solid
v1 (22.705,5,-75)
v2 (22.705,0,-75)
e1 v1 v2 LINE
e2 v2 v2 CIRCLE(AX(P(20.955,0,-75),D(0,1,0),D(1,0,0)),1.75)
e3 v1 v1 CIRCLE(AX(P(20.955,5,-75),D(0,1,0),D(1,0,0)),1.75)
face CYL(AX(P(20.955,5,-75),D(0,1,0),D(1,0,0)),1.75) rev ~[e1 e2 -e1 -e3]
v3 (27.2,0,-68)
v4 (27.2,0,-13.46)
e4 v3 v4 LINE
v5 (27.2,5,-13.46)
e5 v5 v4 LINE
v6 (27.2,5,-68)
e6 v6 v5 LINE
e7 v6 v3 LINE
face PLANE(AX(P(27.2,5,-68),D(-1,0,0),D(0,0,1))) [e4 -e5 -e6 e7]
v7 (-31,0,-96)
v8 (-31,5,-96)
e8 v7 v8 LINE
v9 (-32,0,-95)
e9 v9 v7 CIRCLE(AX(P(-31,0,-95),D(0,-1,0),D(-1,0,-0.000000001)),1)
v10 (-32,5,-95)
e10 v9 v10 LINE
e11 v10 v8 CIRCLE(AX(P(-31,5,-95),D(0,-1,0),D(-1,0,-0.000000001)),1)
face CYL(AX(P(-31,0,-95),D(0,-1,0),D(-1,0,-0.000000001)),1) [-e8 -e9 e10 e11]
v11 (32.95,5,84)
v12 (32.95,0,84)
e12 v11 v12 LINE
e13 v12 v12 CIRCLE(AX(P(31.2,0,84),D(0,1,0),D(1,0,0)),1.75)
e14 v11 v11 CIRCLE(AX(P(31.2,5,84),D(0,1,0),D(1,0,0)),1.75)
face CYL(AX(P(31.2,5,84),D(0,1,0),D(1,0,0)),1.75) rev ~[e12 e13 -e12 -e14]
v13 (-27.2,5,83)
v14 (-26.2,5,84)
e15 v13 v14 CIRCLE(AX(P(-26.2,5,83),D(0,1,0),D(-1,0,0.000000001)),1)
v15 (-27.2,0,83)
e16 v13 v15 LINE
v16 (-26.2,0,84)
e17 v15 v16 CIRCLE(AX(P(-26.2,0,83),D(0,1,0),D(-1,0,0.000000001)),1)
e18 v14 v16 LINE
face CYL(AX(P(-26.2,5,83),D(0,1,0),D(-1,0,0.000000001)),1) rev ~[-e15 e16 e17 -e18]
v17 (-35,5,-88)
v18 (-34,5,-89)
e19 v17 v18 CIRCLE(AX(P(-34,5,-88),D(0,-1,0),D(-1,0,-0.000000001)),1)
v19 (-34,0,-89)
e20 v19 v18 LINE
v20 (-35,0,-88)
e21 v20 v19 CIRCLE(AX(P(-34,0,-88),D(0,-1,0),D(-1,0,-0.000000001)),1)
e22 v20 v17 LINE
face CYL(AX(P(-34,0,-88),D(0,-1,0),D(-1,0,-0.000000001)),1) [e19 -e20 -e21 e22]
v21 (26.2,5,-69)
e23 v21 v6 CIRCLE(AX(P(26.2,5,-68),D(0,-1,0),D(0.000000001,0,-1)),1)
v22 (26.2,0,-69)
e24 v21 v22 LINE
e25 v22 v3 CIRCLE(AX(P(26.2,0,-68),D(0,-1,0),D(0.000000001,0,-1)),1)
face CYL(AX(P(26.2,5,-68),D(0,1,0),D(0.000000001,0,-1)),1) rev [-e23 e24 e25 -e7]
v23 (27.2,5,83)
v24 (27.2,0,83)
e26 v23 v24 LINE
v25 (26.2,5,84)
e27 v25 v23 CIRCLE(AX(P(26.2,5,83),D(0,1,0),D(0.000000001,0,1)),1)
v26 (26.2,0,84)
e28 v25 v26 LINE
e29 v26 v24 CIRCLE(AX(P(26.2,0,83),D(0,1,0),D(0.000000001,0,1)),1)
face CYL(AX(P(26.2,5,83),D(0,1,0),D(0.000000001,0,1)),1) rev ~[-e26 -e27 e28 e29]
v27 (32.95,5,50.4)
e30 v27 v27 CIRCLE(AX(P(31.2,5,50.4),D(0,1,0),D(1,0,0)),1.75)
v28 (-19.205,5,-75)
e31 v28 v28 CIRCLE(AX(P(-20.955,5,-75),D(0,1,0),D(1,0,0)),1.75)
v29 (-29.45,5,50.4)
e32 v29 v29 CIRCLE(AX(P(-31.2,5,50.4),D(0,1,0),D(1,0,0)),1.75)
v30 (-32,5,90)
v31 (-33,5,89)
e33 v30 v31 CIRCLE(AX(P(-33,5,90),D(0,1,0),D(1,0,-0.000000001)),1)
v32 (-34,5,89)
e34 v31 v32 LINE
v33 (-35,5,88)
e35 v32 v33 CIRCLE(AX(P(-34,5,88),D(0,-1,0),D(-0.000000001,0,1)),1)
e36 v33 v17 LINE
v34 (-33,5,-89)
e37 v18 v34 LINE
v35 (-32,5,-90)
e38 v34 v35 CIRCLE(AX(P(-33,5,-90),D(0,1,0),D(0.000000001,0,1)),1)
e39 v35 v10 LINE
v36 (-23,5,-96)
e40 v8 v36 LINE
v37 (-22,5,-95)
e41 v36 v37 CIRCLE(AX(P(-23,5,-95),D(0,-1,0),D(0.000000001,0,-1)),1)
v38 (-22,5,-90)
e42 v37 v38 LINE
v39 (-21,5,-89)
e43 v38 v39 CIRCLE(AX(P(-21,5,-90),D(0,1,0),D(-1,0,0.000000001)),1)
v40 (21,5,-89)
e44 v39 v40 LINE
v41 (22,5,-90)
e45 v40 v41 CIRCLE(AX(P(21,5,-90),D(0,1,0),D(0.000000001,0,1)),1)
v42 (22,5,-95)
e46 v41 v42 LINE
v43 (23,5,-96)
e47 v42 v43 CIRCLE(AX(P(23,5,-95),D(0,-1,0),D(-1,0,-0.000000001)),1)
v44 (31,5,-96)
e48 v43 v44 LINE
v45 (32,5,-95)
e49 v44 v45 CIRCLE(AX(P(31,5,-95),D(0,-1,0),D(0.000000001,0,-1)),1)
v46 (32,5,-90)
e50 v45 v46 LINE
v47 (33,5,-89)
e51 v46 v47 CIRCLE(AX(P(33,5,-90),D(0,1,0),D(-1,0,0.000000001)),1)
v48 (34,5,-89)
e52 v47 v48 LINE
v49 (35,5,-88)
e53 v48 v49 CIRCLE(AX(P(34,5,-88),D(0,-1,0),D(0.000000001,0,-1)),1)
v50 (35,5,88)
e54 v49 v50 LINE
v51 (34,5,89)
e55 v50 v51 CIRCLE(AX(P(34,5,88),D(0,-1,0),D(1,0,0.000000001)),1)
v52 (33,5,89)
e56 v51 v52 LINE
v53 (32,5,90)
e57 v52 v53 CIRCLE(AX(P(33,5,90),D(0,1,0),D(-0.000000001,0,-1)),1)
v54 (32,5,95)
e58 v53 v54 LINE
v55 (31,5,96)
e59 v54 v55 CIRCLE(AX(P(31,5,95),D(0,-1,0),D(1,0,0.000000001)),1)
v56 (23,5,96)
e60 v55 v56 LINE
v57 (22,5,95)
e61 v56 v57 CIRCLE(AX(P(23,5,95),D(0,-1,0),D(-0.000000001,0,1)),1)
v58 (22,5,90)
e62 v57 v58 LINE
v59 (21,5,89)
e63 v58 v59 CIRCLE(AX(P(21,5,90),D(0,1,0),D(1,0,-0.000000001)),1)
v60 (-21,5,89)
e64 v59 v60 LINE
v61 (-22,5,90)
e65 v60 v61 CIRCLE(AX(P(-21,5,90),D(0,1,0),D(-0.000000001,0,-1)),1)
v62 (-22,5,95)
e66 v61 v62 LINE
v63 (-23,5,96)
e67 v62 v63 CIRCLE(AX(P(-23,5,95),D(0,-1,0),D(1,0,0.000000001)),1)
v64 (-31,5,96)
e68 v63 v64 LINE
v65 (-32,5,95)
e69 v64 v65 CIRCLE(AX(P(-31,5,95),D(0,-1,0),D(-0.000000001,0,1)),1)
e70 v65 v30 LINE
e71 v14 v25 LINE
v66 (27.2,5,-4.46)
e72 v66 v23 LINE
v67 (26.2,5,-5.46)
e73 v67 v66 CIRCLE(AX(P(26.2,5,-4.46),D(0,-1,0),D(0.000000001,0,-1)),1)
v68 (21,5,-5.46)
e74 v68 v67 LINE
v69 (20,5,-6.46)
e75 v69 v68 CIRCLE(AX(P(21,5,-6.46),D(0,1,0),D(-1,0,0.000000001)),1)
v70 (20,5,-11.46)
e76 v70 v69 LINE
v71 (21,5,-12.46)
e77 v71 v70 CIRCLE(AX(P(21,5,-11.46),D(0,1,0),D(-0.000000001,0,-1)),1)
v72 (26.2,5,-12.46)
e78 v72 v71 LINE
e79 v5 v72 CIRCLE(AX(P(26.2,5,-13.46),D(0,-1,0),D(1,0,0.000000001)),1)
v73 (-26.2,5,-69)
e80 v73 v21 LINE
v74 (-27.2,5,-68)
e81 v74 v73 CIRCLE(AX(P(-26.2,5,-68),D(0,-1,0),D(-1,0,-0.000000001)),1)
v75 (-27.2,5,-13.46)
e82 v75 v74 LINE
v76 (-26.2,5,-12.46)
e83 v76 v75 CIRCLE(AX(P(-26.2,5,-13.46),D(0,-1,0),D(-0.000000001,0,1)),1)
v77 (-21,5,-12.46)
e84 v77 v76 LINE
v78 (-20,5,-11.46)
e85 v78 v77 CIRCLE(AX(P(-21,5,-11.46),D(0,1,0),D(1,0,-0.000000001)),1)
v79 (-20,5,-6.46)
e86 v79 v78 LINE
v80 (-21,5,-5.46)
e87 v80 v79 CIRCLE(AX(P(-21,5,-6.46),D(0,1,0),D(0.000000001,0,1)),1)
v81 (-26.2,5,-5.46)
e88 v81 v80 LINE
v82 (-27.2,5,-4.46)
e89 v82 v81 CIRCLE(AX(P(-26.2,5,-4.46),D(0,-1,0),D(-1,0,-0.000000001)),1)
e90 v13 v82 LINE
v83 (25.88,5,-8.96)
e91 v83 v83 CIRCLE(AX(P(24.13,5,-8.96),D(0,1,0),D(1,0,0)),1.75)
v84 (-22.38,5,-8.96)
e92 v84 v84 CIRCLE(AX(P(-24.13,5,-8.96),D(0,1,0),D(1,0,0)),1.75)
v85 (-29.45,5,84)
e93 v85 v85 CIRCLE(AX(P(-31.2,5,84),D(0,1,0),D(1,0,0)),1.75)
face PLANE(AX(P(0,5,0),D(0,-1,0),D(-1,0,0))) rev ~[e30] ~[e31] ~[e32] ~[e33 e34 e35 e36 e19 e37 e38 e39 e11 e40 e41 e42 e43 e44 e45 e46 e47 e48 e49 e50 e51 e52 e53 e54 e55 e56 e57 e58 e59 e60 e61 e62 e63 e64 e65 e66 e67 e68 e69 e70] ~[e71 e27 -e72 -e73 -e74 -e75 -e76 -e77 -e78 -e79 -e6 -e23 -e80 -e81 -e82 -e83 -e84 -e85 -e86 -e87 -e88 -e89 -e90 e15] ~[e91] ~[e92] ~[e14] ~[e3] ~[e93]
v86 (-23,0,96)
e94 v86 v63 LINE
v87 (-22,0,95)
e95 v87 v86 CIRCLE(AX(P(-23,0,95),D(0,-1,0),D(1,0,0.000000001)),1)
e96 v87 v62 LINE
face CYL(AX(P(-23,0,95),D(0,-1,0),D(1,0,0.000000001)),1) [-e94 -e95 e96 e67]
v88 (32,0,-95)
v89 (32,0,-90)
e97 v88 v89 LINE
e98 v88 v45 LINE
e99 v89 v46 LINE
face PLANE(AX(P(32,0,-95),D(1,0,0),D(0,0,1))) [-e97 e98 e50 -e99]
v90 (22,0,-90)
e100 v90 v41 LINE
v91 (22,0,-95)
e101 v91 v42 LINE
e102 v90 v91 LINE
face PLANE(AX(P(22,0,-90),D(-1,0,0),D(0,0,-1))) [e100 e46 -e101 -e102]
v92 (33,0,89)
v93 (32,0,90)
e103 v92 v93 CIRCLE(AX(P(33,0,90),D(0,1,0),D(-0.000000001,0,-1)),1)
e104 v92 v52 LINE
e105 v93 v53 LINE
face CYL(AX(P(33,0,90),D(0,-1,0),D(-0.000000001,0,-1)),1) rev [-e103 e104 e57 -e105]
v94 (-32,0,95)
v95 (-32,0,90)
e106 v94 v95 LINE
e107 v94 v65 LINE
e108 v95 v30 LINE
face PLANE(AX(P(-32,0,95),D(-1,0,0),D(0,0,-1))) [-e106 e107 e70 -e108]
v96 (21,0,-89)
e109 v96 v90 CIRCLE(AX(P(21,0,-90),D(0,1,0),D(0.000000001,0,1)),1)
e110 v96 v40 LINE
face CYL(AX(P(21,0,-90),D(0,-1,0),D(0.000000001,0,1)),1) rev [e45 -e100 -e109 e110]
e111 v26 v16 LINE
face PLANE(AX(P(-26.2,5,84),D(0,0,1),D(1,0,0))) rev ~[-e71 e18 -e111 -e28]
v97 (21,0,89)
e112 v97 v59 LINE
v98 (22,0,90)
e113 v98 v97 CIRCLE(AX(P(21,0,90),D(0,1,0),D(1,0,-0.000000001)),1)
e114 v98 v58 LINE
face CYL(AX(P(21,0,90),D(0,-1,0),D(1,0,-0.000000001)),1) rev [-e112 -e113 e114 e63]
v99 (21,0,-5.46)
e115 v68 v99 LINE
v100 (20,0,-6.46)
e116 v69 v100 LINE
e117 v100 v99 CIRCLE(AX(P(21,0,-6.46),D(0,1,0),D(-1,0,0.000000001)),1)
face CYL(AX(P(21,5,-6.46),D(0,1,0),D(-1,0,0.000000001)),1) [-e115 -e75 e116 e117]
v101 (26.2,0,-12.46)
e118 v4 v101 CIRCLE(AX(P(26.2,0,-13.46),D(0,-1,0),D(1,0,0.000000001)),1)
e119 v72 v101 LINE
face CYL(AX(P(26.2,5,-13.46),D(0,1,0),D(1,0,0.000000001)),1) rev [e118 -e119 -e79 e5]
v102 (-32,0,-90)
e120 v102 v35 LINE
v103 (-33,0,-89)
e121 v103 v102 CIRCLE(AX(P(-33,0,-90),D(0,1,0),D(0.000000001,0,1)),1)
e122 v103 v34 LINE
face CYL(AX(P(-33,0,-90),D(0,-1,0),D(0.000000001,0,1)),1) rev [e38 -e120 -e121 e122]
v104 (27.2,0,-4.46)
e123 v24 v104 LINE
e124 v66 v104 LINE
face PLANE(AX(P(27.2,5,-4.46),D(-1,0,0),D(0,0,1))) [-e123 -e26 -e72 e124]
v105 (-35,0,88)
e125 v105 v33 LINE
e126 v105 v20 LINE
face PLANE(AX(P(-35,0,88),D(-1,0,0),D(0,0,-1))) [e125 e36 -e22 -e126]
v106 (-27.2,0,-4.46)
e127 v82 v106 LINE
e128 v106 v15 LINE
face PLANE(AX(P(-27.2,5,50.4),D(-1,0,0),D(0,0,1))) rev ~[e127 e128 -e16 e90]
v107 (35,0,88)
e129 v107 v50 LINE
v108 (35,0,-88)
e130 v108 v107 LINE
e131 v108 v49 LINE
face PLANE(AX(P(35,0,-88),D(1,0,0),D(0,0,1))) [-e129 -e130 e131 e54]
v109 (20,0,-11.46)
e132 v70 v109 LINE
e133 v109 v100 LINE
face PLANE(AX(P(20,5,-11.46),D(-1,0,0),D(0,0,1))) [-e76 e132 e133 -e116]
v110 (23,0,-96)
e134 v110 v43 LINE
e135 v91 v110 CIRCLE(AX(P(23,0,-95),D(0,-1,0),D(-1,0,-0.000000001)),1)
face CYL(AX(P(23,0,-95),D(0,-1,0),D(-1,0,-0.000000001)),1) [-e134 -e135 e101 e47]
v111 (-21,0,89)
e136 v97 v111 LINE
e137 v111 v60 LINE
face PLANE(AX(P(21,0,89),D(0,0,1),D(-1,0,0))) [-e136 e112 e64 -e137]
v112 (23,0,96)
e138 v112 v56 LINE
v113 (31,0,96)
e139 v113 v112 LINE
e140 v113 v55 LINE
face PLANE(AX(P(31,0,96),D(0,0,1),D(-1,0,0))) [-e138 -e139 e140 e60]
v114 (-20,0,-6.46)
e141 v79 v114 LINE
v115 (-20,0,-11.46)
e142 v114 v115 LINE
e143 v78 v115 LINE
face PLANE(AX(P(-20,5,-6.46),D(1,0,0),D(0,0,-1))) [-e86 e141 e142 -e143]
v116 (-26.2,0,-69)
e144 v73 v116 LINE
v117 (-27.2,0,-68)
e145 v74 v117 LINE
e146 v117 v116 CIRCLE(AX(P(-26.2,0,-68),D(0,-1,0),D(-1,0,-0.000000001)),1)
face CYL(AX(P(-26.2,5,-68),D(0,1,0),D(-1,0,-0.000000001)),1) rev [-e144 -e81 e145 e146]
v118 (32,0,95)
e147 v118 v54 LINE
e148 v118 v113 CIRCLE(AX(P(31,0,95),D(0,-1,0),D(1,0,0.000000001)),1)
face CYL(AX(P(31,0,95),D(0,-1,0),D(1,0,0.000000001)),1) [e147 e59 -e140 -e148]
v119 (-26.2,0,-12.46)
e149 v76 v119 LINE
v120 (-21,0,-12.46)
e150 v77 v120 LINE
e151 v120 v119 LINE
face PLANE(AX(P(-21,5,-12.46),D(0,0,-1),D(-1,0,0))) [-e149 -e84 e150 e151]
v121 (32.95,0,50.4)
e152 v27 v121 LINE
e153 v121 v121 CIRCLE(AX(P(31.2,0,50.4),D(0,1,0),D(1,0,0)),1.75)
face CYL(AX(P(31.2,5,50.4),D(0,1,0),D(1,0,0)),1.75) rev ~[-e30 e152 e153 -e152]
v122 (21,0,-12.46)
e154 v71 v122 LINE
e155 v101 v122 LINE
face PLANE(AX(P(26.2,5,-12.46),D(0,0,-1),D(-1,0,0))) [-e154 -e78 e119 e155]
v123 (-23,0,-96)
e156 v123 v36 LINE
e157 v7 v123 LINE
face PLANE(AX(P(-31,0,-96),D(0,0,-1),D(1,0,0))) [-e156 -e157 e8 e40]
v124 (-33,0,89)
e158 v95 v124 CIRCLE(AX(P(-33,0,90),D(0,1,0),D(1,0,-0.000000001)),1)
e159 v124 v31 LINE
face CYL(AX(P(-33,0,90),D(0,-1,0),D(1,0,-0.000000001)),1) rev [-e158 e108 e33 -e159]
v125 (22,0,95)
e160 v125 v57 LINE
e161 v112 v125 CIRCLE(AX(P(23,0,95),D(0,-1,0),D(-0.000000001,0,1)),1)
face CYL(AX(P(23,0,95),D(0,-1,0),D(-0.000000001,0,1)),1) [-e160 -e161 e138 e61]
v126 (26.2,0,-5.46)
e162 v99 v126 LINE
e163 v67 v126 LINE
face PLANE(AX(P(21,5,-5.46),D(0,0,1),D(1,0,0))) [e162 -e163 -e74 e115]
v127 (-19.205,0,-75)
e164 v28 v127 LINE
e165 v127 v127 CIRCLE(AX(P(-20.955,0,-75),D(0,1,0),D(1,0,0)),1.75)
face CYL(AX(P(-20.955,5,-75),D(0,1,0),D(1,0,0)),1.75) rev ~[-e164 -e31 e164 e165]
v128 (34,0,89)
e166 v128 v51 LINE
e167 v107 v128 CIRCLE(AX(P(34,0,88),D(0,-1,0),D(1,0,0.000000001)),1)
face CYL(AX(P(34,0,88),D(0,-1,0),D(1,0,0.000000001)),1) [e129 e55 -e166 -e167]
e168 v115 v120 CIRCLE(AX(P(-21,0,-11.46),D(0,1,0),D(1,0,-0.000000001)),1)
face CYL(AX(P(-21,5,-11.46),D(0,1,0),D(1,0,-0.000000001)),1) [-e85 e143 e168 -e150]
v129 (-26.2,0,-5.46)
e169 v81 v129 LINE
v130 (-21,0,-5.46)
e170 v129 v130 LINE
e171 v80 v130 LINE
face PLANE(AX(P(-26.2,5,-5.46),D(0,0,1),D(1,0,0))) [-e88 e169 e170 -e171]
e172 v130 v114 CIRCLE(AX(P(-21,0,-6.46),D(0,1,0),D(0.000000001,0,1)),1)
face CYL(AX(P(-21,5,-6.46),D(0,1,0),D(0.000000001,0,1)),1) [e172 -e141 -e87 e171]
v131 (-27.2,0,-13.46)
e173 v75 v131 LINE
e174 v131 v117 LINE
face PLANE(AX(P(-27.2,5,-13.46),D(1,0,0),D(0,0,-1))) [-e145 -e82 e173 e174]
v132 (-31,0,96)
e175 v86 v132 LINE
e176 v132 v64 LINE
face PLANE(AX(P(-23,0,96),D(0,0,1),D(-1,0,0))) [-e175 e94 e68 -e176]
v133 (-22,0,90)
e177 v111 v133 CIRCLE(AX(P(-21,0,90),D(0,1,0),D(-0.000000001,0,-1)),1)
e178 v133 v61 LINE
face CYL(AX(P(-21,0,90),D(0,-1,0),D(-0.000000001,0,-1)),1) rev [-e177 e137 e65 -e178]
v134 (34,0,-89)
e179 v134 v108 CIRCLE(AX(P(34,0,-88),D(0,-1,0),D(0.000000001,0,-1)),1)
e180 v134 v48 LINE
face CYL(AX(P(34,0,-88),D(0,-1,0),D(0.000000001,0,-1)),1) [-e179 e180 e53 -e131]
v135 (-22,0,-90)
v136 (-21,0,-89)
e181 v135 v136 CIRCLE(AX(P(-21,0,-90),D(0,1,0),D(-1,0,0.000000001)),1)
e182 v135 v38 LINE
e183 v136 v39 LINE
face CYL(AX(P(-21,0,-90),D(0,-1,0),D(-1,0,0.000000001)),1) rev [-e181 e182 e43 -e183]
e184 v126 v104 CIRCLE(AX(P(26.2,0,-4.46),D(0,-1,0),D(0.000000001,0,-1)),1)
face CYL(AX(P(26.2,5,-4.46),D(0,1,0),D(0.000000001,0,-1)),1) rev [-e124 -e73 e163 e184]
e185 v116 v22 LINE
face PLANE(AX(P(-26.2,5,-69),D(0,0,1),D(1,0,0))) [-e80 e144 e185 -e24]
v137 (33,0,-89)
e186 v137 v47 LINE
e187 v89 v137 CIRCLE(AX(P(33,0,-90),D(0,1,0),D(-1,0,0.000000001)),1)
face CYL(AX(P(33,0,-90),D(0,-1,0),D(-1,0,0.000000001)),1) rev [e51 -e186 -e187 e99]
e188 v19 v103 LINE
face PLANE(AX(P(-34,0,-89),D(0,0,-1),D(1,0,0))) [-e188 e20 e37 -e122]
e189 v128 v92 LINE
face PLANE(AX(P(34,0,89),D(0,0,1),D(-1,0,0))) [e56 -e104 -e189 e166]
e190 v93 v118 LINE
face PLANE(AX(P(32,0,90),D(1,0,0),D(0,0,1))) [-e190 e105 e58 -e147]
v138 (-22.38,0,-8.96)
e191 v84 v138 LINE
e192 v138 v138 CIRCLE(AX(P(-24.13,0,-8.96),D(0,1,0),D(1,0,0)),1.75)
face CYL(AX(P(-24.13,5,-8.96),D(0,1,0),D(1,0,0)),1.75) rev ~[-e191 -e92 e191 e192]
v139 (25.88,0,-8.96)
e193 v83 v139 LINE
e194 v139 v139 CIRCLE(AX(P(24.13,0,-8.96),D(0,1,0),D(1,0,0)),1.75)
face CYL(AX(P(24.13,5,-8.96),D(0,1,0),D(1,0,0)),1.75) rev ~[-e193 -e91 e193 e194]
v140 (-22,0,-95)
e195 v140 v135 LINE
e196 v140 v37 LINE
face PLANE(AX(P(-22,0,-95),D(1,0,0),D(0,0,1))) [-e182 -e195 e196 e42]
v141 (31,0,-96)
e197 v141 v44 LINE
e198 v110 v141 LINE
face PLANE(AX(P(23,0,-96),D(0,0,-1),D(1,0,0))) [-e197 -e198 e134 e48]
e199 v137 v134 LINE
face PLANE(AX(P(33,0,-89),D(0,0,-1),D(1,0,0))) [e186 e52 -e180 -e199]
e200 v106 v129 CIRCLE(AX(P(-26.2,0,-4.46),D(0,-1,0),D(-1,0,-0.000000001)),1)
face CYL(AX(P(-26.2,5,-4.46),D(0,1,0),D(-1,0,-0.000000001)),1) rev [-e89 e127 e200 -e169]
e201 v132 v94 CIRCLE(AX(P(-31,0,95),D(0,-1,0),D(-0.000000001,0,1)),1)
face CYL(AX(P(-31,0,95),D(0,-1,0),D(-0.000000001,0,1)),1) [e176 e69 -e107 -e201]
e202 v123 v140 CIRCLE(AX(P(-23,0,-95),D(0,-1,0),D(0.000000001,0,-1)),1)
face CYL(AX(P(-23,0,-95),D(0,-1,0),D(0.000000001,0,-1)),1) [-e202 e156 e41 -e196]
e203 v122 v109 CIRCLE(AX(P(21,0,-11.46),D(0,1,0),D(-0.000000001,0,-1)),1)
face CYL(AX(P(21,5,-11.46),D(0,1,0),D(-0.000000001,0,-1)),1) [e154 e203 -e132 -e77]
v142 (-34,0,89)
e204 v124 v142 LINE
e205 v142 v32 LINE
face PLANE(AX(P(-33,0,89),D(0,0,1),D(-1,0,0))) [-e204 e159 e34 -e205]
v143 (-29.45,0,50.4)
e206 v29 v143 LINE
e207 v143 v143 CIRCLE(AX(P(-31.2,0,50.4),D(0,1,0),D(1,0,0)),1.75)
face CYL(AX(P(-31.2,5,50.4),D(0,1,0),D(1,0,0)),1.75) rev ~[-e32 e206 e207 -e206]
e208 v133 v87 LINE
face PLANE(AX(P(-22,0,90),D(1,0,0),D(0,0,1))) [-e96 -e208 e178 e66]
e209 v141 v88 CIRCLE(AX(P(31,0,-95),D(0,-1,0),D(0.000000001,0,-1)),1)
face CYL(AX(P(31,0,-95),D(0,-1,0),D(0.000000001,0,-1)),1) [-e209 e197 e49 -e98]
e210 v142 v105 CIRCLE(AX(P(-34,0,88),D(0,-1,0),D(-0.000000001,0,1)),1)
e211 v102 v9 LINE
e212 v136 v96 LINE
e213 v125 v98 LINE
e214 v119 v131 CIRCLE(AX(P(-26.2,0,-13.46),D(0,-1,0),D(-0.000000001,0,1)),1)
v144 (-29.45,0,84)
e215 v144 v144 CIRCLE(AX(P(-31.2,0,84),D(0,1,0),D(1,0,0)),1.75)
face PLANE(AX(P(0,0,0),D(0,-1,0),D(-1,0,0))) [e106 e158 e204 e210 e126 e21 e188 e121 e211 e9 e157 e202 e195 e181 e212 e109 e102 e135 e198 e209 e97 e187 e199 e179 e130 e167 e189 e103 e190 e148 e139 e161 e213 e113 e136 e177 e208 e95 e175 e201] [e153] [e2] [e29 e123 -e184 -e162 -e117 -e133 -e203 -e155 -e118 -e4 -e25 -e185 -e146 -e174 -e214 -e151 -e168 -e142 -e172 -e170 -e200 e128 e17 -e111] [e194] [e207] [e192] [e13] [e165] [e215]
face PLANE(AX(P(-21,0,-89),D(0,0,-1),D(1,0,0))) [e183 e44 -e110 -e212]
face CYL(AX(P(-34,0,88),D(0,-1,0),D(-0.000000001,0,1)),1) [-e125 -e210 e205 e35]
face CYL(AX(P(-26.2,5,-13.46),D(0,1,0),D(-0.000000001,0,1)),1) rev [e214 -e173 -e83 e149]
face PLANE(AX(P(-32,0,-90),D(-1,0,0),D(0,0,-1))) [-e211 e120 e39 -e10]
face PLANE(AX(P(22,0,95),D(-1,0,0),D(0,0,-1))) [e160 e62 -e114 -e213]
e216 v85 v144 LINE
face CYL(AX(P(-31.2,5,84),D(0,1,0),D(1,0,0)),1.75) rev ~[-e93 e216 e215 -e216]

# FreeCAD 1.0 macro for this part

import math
import FreeCAD as App
import Part
import Sketcher

V = App.Vector
Q = App.Units.Quantity

doc = App.newDocument("Part")
body = doc.addObject("PartDesign::Body", "Body")

# Sketch on XZ plane
sketch1 = body.newObject("Sketcher::SketchObject", "Sketch")
sketch1.AttachmentSupport = (doc.getObject("XZ_Plane"), [""])
sketch1.MapMode = "FlatFace"
sketch1.addGeometry(Part.LineSegment(V(33, 89, 0), V(34, 89, 0)), False)
sketch1.addGeometry(Part.ArcOfCircle(Part.Circle(V(34, 88, 0), V(0, 0, 1), 1), math.radians(0), math.radians(90)), False)
sketch1.addGeometry(Part.LineSegment(V(35, 88, 0), V(35, -88, 0)), False)
sketch1.addGeometry(Part.ArcOfCircle(Part.Circle(V(34, -88, 0), V(0, 0, 1), 1), math.radians(-90), math.radians(0)), False)
sketch1.addGeometry(Part.LineSegment(V(34, -89, 0), V(33, -89, 0)), False)
sketch1.addGeometry(Part.ArcOfCircle(Part.Circle(V(33, -90, 0), V(0, 0, 1), 1), math.radians(90), math.radians(180)), False)
sketch1.addGeometry(Part.LineSegment(V(32, -90, 0), V(32, -95, 0)), False)
sketch1.addGeometry(Part.ArcOfCircle(Part.Circle(V(31, -95, 0), V(0, 0, 1), 1), math.radians(-90), math.radians(0)), False)
sketch1.addGeometry(Part.LineSegment(V(31, -96, 0), V(23, -96, 0)), False)
sketch1.addGeometry(Part.ArcOfCircle(Part.Circle(V(23, -95, 0), V(0, 0, 1), 1), math.radians(-180), math.radians(-90)), False)
sketch1.addGeometry(Part.LineSegment(V(22, -95, 0), V(22, -90, 0)), False)
sketch1.addGeometry(Part.ArcOfCircle(Part.Circle(V(21, -90, 0), V(0, 0, 1), 1), math.radians(0), math.radians(90)), False)
sketch1.addGeometry(Part.LineSegment(V(21, -89, 0), V(-21, -89, 0)), False)
sketch1.addGeometry(Part.ArcOfCircle(Part.Circle(V(-21, -90, 0), V(0, 0, 1), 1), math.radians(90), math.radians(180)), False)
sketch1.addGeometry(Part.LineSegment(V(-22, -90, 0), V(-22, -95, 0)), False)
sketch1.addGeometry(Part.ArcOfCircle(Part.Circle(V(-23, -95, 0), V(0, 0, 1), 1), math.radians(-90), math.radians(0)), False)
sketch1.addGeometry(Part.LineSegment(V(-23, -96, 0), V(-31, -96, 0)), False)
sketch1.addGeometry(Part.ArcOfCircle(Part.Circle(V(-31, -95, 0), V(0, 0, 1), 1), math.radians(-180), math.radians(-90)), False)
sketch1.addGeometry(Part.LineSegment(V(-32, -95, 0), V(-32, -90, 0)), False)
sketch1.addGeometry(Part.ArcOfCircle(Part.Circle(V(-33, -90, 0), V(0, 0, 1), 1), math.radians(0), math.radians(90)), False)
sketch1.addGeometry(Part.LineSegment(V(-33, -89, 0), V(-34, -89, 0)), False)
sketch1.addGeometry(Part.ArcOfCircle(Part.Circle(V(-34, -88, 0), V(0, 0, 1), 1), math.radians(-180), math.radians(-90)), False)
sketch1.addGeometry(Part.LineSegment(V(-35, -88, 0), V(-35, 88, 0)), False)
sketch1.addGeometry(Part.ArcOfCircle(Part.Circle(V(-34, 88, 0), V(0, 0, 1), 1), math.radians(90), math.radians(180)), False)
sketch1.addGeometry(Part.LineSegment(V(-34, 89, 0), V(-33, 89, 0)), False)
sketch1.addGeometry(Part.ArcOfCircle(Part.Circle(V(-33, 90, 0), V(0, 0, 1), 1), math.radians(-90), math.radians(0)), False)
sketch1.addGeometry(Part.LineSegment(V(-32, 90, 0), V(-32, 95, 0)), False)
sketch1.addGeometry(Part.ArcOfCircle(Part.Circle(V(-31, 95, 0), V(0, 0, 1), 1), math.radians(90), math.radians(180)), False)
sketch1.addGeometry(Part.LineSegment(V(-31, 96, 0), V(-23, 96, 0)), False)
sketch1.addGeometry(Part.ArcOfCircle(Part.Circle(V(-23, 95, 0), V(0, 0, 1), 1), math.radians(0), math.radians(90)), False)
sketch1.addGeometry(Part.LineSegment(V(-22, 95, 0), V(-22, 90, 0)), False)
sketch1.addGeometry(Part.ArcOfCircle(Part.Circle(V(-21, 90, 0), V(0, 0, 1), 1), math.radians(-180), math.radians(-90)), False)
sketch1.addGeometry(Part.LineSegment(V(-21, 89, 0), V(21, 89, 0)), False)
sketch1.addGeometry(Part.ArcOfCircle(Part.Circle(V(21, 90, 0), V(0, 0, 1), 1), math.radians(-90), math.radians(0)), False)
sketch1.addGeometry(Part.LineSegment(V(22, 90, 0), V(22, 95, 0)), False)
sketch1.addGeometry(Part.ArcOfCircle(Part.Circle(V(23, 95, 0), V(0, 0, 1), 1), math.radians(90), math.radians(180)), False)
sketch1.addGeometry(Part.LineSegment(V(23, 96, 0), V(31, 96, 0)), False)
sketch1.addGeometry(Part.ArcOfCircle(Part.Circle(V(31, 95, 0), V(0, 0, 1), 1), math.radians(0), math.radians(90)), False)
sketch1.addGeometry(Part.LineSegment(V(32, 95, 0), V(32, 90, 0)), False)
sketch1.addGeometry(Part.ArcOfCircle(Part.Circle(V(33, 90, 0), V(0, 0, 1), 1), math.radians(-180), math.radians(-90)), False)
sketch1.addConstraint(Sketcher.Constraint("Tangent", 0, 2, 1, 2))
sketch1.addConstraint(Sketcher.Constraint("Tangent", 1, 1, 2, 1))
sketch1.addConstraint(Sketcher.Constraint("Tangent", 2, 2, 3, 2))
sketch1.addConstraint(Sketcher.Constraint("Tangent", 3, 1, 4, 1))
sketch1.addConstraint(Sketcher.Constraint("Tangent", 4, 2, 5, 1))
sketch1.addConstraint(Sketcher.Constraint("Tangent", 5, 2, 6, 1))
sketch1.addConstraint(Sketcher.Constraint("Tangent", 6, 2, 7, 2))
sketch1.addConstraint(Sketcher.Constraint("Tangent", 7, 1, 8, 1))
sketch1.addConstraint(Sketcher.Constraint("Tangent", 8, 2, 9, 2))
sketch1.addConstraint(Sketcher.Constraint("Tangent", 9, 1, 10, 1))
sketch1.addConstraint(Sketcher.Constraint("Tangent", 10, 2, 11, 1))
sketch1.addConstraint(Sketcher.Constraint("Tangent", 11, 2, 12, 1))
sketch1.addConstraint(Sketcher.Constraint("Tangent", 12, 2, 13, 1))
sketch1.addConstraint(Sketcher.Constraint("Tangent", 13, 2, 14, 1))
sketch1.addConstraint(Sketcher.Constraint("Tangent", 14, 2, 15, 2))
sketch1.addConstraint(Sketcher.Constraint("Tangent", 15, 1, 16, 1))
sketch1.addConstraint(Sketcher.Constraint("Tangent", 16, 2, 17, 2))
sketch1.addConstraint(Sketcher.Constraint("Tangent", 17, 1, 18, 1))
sketch1.addConstraint(Sketcher.Constraint("Tangent", 18, 2, 19, 1))
sketch1.addConstraint(Sketcher.Constraint("Tangent", 19, 2, 20, 1))
sketch1.addConstraint(Sketcher.Constraint("Tangent", 20, 2, 21, 2))
sketch1.addConstraint(Sketcher.Constraint("Tangent", 21, 1, 22, 1))
sketch1.addConstraint(Sketcher.Constraint("Tangent", 22, 2, 23, 2))
sketch1.addConstraint(Sketcher.Constraint("Tangent", 23, 1, 24, 1))
sketch1.addConstraint(Sketcher.Constraint("Tangent", 24, 2, 25, 1))
sketch1.addConstraint(Sketcher.Constraint("Tangent", 25, 2, 26, 1))
sketch1.addConstraint(Sketcher.Constraint("Tangent", 26, 2, 27, 2))
sketch1.addConstraint(Sketcher.Constraint("Tangent", 27, 1, 28, 1))
sketch1.addConstraint(Sketcher.Constraint("Tangent", 28, 2, 29, 2))
sketch1.addConstraint(Sketcher.Constraint("Tangent", 29, 1, 30, 1))
sketch1.addConstraint(Sketcher.Constraint("Tangent", 30, 2, 31, 1))
sketch1.addConstraint(Sketcher.Constraint("Tangent", 31, 2, 32, 1))
sketch1.addConstraint(Sketcher.Constraint("Tangent", 32, 2, 33, 1))
sketch1.addConstraint(Sketcher.Constraint("Tangent", 33, 2, 34, 1))
sketch1.addConstraint(Sketcher.Constraint("Tangent", 34, 2, 35, 2))
sketch1.addConstraint(Sketcher.Constraint("Tangent", 35, 1, 36, 1))
sketch1.addConstraint(Sketcher.Constraint("Tangent", 36, 2, 37, 2))
sketch1.addConstraint(Sketcher.Constraint("Tangent", 37, 1, 38, 1))
sketch1.addConstraint(Sketcher.Constraint("Tangent", 38, 2, 39, 1))
sketch1.addConstraint(Sketcher.Constraint("Tangent", 39, 2, 0, 1))
sketch1.addConstraint(Sketcher.Constraint("Horizontal", 0))
sketch1.addConstraint(Sketcher.Constraint("Vertical", 2))
sketch1.addConstraint(Sketcher.Constraint("Horizontal", 4))
sketch1.addConstraint(Sketcher.Constraint("Vertical", 6))
sketch1.addConstraint(Sketcher.Constraint("Horizontal", 8))
sketch1.addConstraint(Sketcher.Constraint("Vertical", 10))
sketch1.addConstraint(Sketcher.Constraint("Horizontal", 12))
sketch1.addConstraint(Sketcher.Constraint("Vertical", 14))
sketch1.addConstraint(Sketcher.Constraint("Horizontal", 16))
sketch1.addConstraint(Sketcher.Constraint("Vertical", 18))
sketch1.addConstraint(Sketcher.Constraint("Horizontal", 20))
sketch1.addConstraint(Sketcher.Constraint("Vertical", 22))
sketch1.addConstraint(Sketcher.Constraint("Horizontal", 24))
sketch1.addConstraint(Sketcher.Constraint("Vertical", 26))
sketch1.addConstraint(Sketcher.Constraint("Horizontal", 28))
sketch1.addConstraint(Sketcher.Constraint("Vertical", 30))
sketch1.addConstraint(Sketcher.Constraint("Horizontal", 32))
sketch1.addConstraint(Sketcher.Constraint("Vertical", 34))
sketch1.addConstraint(Sketcher.Constraint("Horizontal", 36))
sketch1.addConstraint(Sketcher.Constraint("Vertical", 38))
sketch1.addConstraint(Sketcher.Constraint("Equal", 1, 3))
sketch1.addConstraint(Sketcher.Constraint("Equal", 3, 5))
sketch1.addConstraint(Sketcher.Constraint("Equal", 5, 7))
sketch1.addConstraint(Sketcher.Constraint("Equal", 7, 9))
sketch1.addConstraint(Sketcher.Constraint("Equal", 9, 11))
sketch1.addConstraint(Sketcher.Constraint("Equal", 11, 13))
sketch1.addConstraint(Sketcher.Constraint("Equal", 13, 15))
sketch1.addConstraint(Sketcher.Constraint("Equal", 15, 17))
sketch1.addConstraint(Sketcher.Constraint("Equal", 17, 19))
sketch1.addConstraint(Sketcher.Constraint("Equal", 19, 21))
sketch1.addConstraint(Sketcher.Constraint("Equal", 21, 23))
sketch1.addConstraint(Sketcher.Constraint("Equal", 23, 25))
sketch1.addConstraint(Sketcher.Constraint("Equal", 25, 27))
sketch1.addConstraint(Sketcher.Constraint("Equal", 27, 29))
sketch1.addConstraint(Sketcher.Constraint("Equal", 29, 31))
sketch1.addConstraint(Sketcher.Constraint("Equal", 31, 33))
sketch1.addConstraint(Sketcher.Constraint("Equal", 33, 35))
sketch1.addConstraint(Sketcher.Constraint("Equal", 35, 37))
sketch1.addConstraint(Sketcher.Constraint("Equal", 37, 39))
sketch1.addConstraint(Sketcher.Constraint("Symmetric", 1, 3, 21, 3, -1, 1))
sketch1.addConstraint(Sketcher.Constraint("Symmetric", 5, 3, 25, 3, -1, 1))
sketch1.addConstraint(Sketcher.Constraint("Symmetric", 9, 3, 29, 3, -1, 1))
sketch1.addConstraint(Sketcher.Constraint("Symmetric", 13, 3, 33, 3, -1, 1))
sketch1.addConstraint(Sketcher.Constraint("Symmetric", 17, 3, 37, 3, -1, 1))
sketch1.addConstraint(Sketcher.Constraint("Symmetric", 9, 3, 15, 3, -2))
sketch1.addConstraint(Sketcher.Constraint("Symmetric", 5, 3, 19, 3, -2))
sketch1.addConstraint(Sketcher.Constraint("Horizontal", 5, 3, 11, 3))
sketch1.addConstraint(Sketcher.Constraint("Radius", 1, Q("1 mm")))
sketch1.addConstraint(Sketcher.Constraint("DistanceX", 0, 1, 0, 2, Q("1 mm")))
sketch1.addConstraint(Sketcher.Constraint("DistanceX", 8, 2, 8, 1, Q("8 mm")))
sketch1.addConstraint(Sketcher.Constraint("DistanceX", 12, 2, 12, 1, Q("42 mm")))
sketch1.addConstraint(Sketcher.Constraint("DistanceY", 2, 2, 2, 1, Q("176 mm")))
sketch1.addConstraint(Sketcher.Constraint("DistanceY", 6, 2, 6, 1, Q("5 mm")))
pad1 = body.newObject("PartDesign::Pad", "Pad")
pad1.Profile = sketch1
pad1.Length = 5
pad1.Reversed = True

# Sketch on XZ plane
sketch2 = body.newObject("Sketcher::SketchObject", "Sketch001")
sketch2.AttachmentSupport = (doc.getObject("XZ_Plane"), [""])
sketch2.MapMode = "FlatFace"
sketch2.AttachmentOffset = App.Placement(V(0, 0, -5), App.Rotation())
sketch2.addGeometry(Part.Circle(V(-21, -75, 0), V(0, 0, 1), 1.8), False)
sketch2.addGeometry(Part.Circle(V(-24.1, -9, 0), V(0, 0, 1), 1.8), False)
sketch2.addGeometry(Part.Circle(V(21, -75, 0), V(0, 0, 1), 1.8), False)
sketch2.addGeometry(Part.Circle(V(24.1, -9, 0), V(0, 0, 1), 1.8), False)
sketch2.addConstraint(Sketcher.Constraint("Equal", 0, 1))
sketch2.addConstraint(Sketcher.Constraint("Equal", 1, 2))
sketch2.addConstraint(Sketcher.Constraint("Equal", 2, 3))
sketch2.addConstraint(Sketcher.Constraint("Symmetric", 0, 3, 2, 3, -2))
sketch2.addConstraint(Sketcher.Constraint("Symmetric", 1, 3, 3, 3, -2))
sketch2.addConstraint(Sketcher.Constraint("Diameter", 0, Q("3.5 mm")))
sketch2.addConstraint(Sketcher.Constraint("DistanceY", 0, 3, -1, 1, Q("75 mm")))
sketch2.addConstraint(Sketcher.Constraint("DistanceX", 1, 3, -1, 1, Q("24.13 mm")))
sketch2.addConstraint(Sketcher.Constraint("DistanceY", 1, 3, -1, 1, Q("8.96 mm")))
sketch2.addConstraint(Sketcher.Constraint("DistanceX", 0, 3, 2, 3, Q("41.91 mm")))
pocket1 = body.newObject("PartDesign::Pocket", "Pocket")
pocket1.Profile = sketch2
pocket1.Length = 10
pocket1.Reversed = True

# Sketch on XZ plane
sketch3 = body.newObject("Sketcher::SketchObject", "Sketch002")
sketch3.AttachmentSupport = (doc.getObject("XZ_Plane"), [""])
sketch3.MapMode = "FlatFace"
sketch3.AttachmentOffset = App.Placement(V(0, 0, -5), App.Rotation())
sketch3.addGeometry(Part.Circle(V(-31.2, 84, 0), V(0, 0, 1), 1.8), False)
sketch3.addGeometry(Part.Circle(V(31.2, 84, 0), V(0, 0, 1), 1.8), False)
sketch3.addGeometry(Part.Circle(V(31.2, 50.4, 0), V(0, 0, 1), 1.8), False)
sketch3.addGeometry(Part.Circle(V(-31.2, 50.4, 0), V(0, 0, 1), 1.8), False)
sketch3.addConstraint(Sketcher.Constraint("Equal", 0, 1))
sketch3.addConstraint(Sketcher.Constraint("Equal", 1, 2))
sketch3.addConstraint(Sketcher.Constraint("Equal", 2, 3))
sketch3.addConstraint(Sketcher.Constraint("Symmetric", 0, 3, 1, 3, -2))
sketch3.addConstraint(Sketcher.Constraint("Symmetric", 2, 3, 3, 3, -2))
sketch3.addConstraint(Sketcher.Constraint("Vertical", 1, 3, 2, 3))
sketch3.addConstraint(Sketcher.Constraint("Diameter", 0, Q("3.5 mm")))
sketch3.addConstraint(Sketcher.Constraint("DistanceY", -1, 1, 0, 3, Q("84 mm")))
sketch3.addConstraint(Sketcher.Constraint("DistanceX", 0, 3, -1, 1, Q("31.2 mm")))
sketch3.addConstraint(Sketcher.Constraint("DistanceY", -1, 1, 2, 3, Q("50.4 mm")))
pocket2 = body.newObject("PartDesign::Pocket", "Pocket001")
pocket2.Profile = sketch3
pocket2.Length = 10
pocket2.Reversed = True

# Sketch on XZ plane
sketch4 = body.newObject("Sketcher::SketchObject", "Sketch003")
sketch4.AttachmentSupport = (doc.getObject("XZ_Plane"), [""])
sketch4.MapMode = "FlatFace"
sketch4.AttachmentOffset = App.Placement(V(0, 0, -5), App.Rotation())
sketch4.addGeometry(Part.LineSegment(V(-26.2, 84, 0), V(26.2, 84, 0)), False)
sketch4.addGeometry(Part.ArcOfCircle(Part.Circle(V(26.2, 83, 0), V(0, 0, 1), 1), math.radians(0), math.radians(90)), False)
sketch4.addGeometry(Part.LineSegment(V(27.2, 83, 0), V(27.2, 50.4, 0)), False)
sketch4.addGeometry(Part.LineSegment(V(27.2, 50.4, 0), V(-27.2, 50.4, 0)), False)
sketch4.addGeometry(Part.LineSegment(V(-27.2, 50.4, 0), V(-27.2, 83, 0)), False)
sketch4.addGeometry(Part.ArcOfCircle(Part.Circle(V(-26.2, 83, 0), V(0, 0, 1), 1), math.radians(90), math.radians(180)), False)
sketch4.addConstraint(Sketcher.Constraint("Tangent", 0, 2, 1, 2))
sketch4.addConstraint(Sketcher.Constraint("Tangent", 1, 1, 2, 1))
sketch4.addConstraint(Sketcher.Constraint("Coincident", 2, 2, 3, 1))
sketch4.addConstraint(Sketcher.Constraint("Coincident", 3, 2, 4, 1))
sketch4.addConstraint(Sketcher.Constraint("Tangent", 4, 2, 5, 2))
sketch4.addConstraint(Sketcher.Constraint("Tangent", 5, 1, 0, 1))
sketch4.addConstraint(Sketcher.Constraint("Horizontal", 0))
sketch4.addConstraint(Sketcher.Constraint("Vertical", 2))
sketch4.addConstraint(Sketcher.Constraint("Horizontal", 3))
sketch4.addConstraint(Sketcher.Constraint("Vertical", 4))
sketch4.addConstraint(Sketcher.Constraint("Equal", 1, 5))
sketch4.addConstraint(Sketcher.Constraint("Radius", 1, Q("1 mm")))
sketch4.addConstraint(Sketcher.Constraint("DistanceX", 0, 1, 0, 2, Q("52.4 mm")))
sketch4.addConstraint(Sketcher.Constraint("DistanceY", 2, 2, 2, 1, Q("32.6 mm")))
sketch4.addConstraint(Sketcher.Constraint("DistanceY", -1, 1, 1, 3, Q("83 mm")))
sketch4.addConstraint(Sketcher.Constraint("DistanceX", -1, 1, 1, 3, Q("26.2 mm")))
pocket3 = body.newObject("PartDesign::Pocket", "Pocket002")
pocket3.Profile = sketch4
pocket3.Length = 65
pocket3.Reversed = True

# Sketch on XZ plane
sketch5 = body.newObject("Sketcher::SketchObject", "Sketch004")
sketch5.AttachmentSupport = (doc.getObject("XZ_Plane"), [""])
sketch5.MapMode = "FlatFace"
sketch5.AttachmentOffset = App.Placement(V(0, 0, -5), App.Rotation())
sketch5.addGeometry(Part.LineSegment(V(-27, 12, 0), V(-27, 50, 0)), False)
sketch5.addGeometry(Part.LineSegment(V(-27, 50, 0), V(27, 50, 0)), False)
sketch5.addGeometry(Part.LineSegment(V(27, 50, 0), V(27, 12, 0)), False)
sketch5.addGeometry(Part.LineSegment(V(27, 12, 0), V(-27, 12, 0)), False)
sketch5.addConstraint(Sketcher.Constraint("Coincident", 0, 2, 1, 1))
sketch5.addConstraint(Sketcher.Constraint("Coincident", 1, 2, 2, 1))
sketch5.addConstraint(Sketcher.Constraint("Coincident", 2, 2, 3, 1))
sketch5.addConstraint(Sketcher.Constraint("Coincident", 3, 2, 0, 1))
sketch5.addConstraint(Sketcher.Constraint("Vertical", 0))
sketch5.addConstraint(Sketcher.Constraint("Horizontal", 1))
sketch5.addConstraint(Sketcher.Constraint("Vertical", 2))
sketch5.addConstraint(Sketcher.Constraint("Horizontal", 3))
sketch5.addConstraint(Sketcher.Constraint("DistanceY", 0, 1, 0, 2, Q("38 mm")))
sketch5.addConstraint(Sketcher.Constraint("DistanceX", 1, 1, 1, 2, Q("54.4 mm")))
sketch5.addConstraint(Sketcher.Constraint("DistanceX", 0, 2, -1, 1, Q("27.2 mm")))
sketch5.addConstraint(Sketcher.Constraint("DistanceY", -1, 1, 0, 2, Q("50.4 mm")))
pocket4 = body.newObject("PartDesign::Pocket", "Pocket003")
pocket4.Profile = sketch5
pocket4.Length = 5
pocket4.Reversed = True

# Sketch on XZ plane
sketch6 = body.newObject("Sketcher::SketchObject", "Sketch005")
sketch6.AttachmentSupport = (doc.getObject("XZ_Plane"), [""])
sketch6.MapMode = "FlatFace"
sketch6.AttachmentOffset = App.Placement(V(0, 0, -5), App.Rotation())
sketch6.addGeometry(Part.LineSegment(V(21, -12.5, 0), V(26.2, -12.5, 0)), False)
sketch6.addGeometry(Part.ArcOfCircle(Part.Circle(V(26.2, -13.5, 0), V(0, 0, 1), 1), math.radians(0), math.radians(90)), False)
sketch6.addGeometry(Part.LineSegment(V(27.2, -13.5, 0), V(27.2, -68, 0)), False)
sketch6.addGeometry(Part.ArcOfCircle(Part.Circle(V(26.2, -68, 0), V(0, 0, 1), 1), math.radians(-90), math.radians(0)), False)
sketch6.addGeometry(Part.LineSegment(V(26.2, -69, 0), V(-26.2, -69, 0)), False)
sketch6.addGeometry(Part.ArcOfCircle(Part.Circle(V(-26.2, -68, 0), V(0, 0, 1), 1), math.radians(-180), math.radians(-90)), False)
sketch6.addGeometry(Part.LineSegment(V(-27.2, -68, 0), V(-27.2, -13.5, 0)), False)
sketch6.addGeometry(Part.ArcOfCircle(Part.Circle(V(-26.2, -13.5, 0), V(0, 0, 1), 1), math.radians(90), math.radians(180)), False)
sketch6.addGeometry(Part.LineSegment(V(-26.2, -12.5, 0), V(-21, -12.5, 0)), False)
sketch6.addGeometry(Part.ArcOfCircle(Part.Circle(V(-21, -11.5, 0), V(0, 0, 1), 1), math.radians(-90), math.radians(0)), False)
sketch6.addGeometry(Part.LineSegment(V(-20, -11.5, 0), V(-20, -6.5, 0)), False)
sketch6.addGeometry(Part.ArcOfCircle(Part.Circle(V(-21, -6.5, 0), V(0, 0, 1), 1), math.radians(0), math.radians(90)), False)
sketch6.addGeometry(Part.LineSegment(V(-21, -5.5, 0), V(-26.2, -5.5, 0)), False)
sketch6.addGeometry(Part.ArcOfCircle(Part.Circle(V(-26.2, -4.5, 0), V(0, 0, 1), 1), math.radians(-180), math.radians(-90)), False)
sketch6.addGeometry(Part.LineSegment(V(-27.2, -4.5, 0), V(-27.2, 12.5, 0)), False)
sketch6.addGeometry(Part.LineSegment(V(-27.2, 12.5, 0), V(27.2, 12.5, 0)), False)
sketch6.addGeometry(Part.LineSegment(V(27.2, 12.5, 0), V(27.2, -4.5, 0)), False)
sketch6.addGeometry(Part.ArcOfCircle(Part.Circle(V(26.2, -4.5, 0), V(0, 0, 1), 1), math.radians(-90), math.radians(0)), False)
sketch6.addGeometry(Part.LineSegment(V(26.2, -5.5, 0), V(21, -5.5, 0)), False)
sketch6.addGeometry(Part.ArcOfCircle(Part.Circle(V(21, -6.5, 0), V(0, 0, 1), 1), math.radians(90), math.radians(180)), False)
sketch6.addGeometry(Part.LineSegment(V(20, -6.5, 0), V(20, -11.5, 0)), False)
sketch6.addGeometry(Part.ArcOfCircle(Part.Circle(V(21, -11.5, 0), V(0, 0, 1), 1), math.radians(-180), math.radians(-90)), False)
sketch6.addConstraint(Sketcher.Constraint("Tangent", 0, 2, 1, 2))
sketch6.addConstraint(Sketcher.Constraint("Tangent", 1, 1, 2, 1))
sketch6.addConstraint(Sketcher.Constraint("Tangent", 2, 2, 3, 2))
sketch6.addConstraint(Sketcher.Constraint("Tangent", 3, 1, 4, 1))
sketch6.addConstraint(Sketcher.Constraint("Tangent", 4, 2, 5, 2))
sketch6.addConstraint(Sketcher.Constraint("Tangent", 5, 1, 6, 1))
sketch6.addConstraint(Sketcher.Constraint("Tangent", 6, 2, 7, 2))
sketch6.addConstraint(Sketcher.Constraint("Tangent", 7, 1, 8, 1))
sketch6.addConstraint(Sketcher.Constraint("Tangent", 8, 2, 9, 1))
sketch6.addConstraint(Sketcher.Constraint("Tangent", 9, 2, 10, 1))
sketch6.addConstraint(Sketcher.Constraint("Tangent", 10, 2, 11, 1))
sketch6.addConstraint(Sketcher.Constraint("Tangent", 11, 2, 12, 1))
sketch6.addConstraint(Sketcher.Constraint("Tangent", 12, 2, 13, 2))
sketch6.addConstraint(Sketcher.Constraint("Tangent", 13, 1, 14, 1))
sketch6.addConstraint(Sketcher.Constraint("Coincident", 14, 2, 15, 1))
sketch6.addConstraint(Sketcher.Constraint("Coincident", 15, 2, 16, 1))
sketch6.addConstraint(Sketcher.Constraint("Tangent", 16, 2, 17, 2))
sketch6.addConstraint(Sketcher.Constraint("Tangent", 17, 1, 18, 1))
sketch6.addConstraint(Sketcher.Constraint("Tangent", 18, 2, 19, 1))
sketch6.addConstraint(Sketcher.Constraint("Tangent", 19, 2, 20, 1))
sketch6.addConstraint(Sketcher.Constraint("Tangent", 20, 2, 21, 1))
sketch6.addConstraint(Sketcher.Constraint("Tangent", 21, 2, 0, 1))
sketch6.addConstraint(Sketcher.Constraint("Horizontal", 0))
sketch6.addConstraint(Sketcher.Constraint("Vertical", 2))
sketch6.addConstraint(Sketcher.Constraint("Horizontal", 4))
sketch6.addConstraint(Sketcher.Constraint("Vertical", 6))
sketch6.addConstraint(Sketcher.Constraint("Horizontal", 8))
sketch6.addConstraint(Sketcher.Constraint("Vertical", 10))
sketch6.addConstraint(Sketcher.Constraint("Horizontal", 12))
sketch6.addConstraint(Sketcher.Constraint("Vertical", 14))
sketch6.addConstraint(Sketcher.Constraint("Horizontal", 15))
sketch6.addConstraint(Sketcher.Constraint("Vertical", 16))
sketch6.addConstraint(Sketcher.Constraint("Horizontal", 18))
sketch6.addConstraint(Sketcher.Constraint("Vertical", 20))
sketch6.addConstraint(Sketcher.Constraint("Equal", 1, 3))
sketch6.addConstraint(Sketcher.Constraint("Equal", 3, 5))
sketch6.addConstraint(Sketcher.Constraint("Equal", 5, 7))
sketch6.addConstraint(Sketcher.Constraint("Equal", 7, 9))
sketch6.addConstraint(Sketcher.Constraint("Equal", 9, 11))
sketch6.addConstraint(Sketcher.Constraint("Equal", 11, 13))
sketch6.addConstraint(Sketcher.Constraint("Equal", 13, 17))
sketch6.addConstraint(Sketcher.Constraint("Equal", 17, 19))
sketch6.addConstraint(Sketcher.Constraint("Equal", 19, 21))
sketch6.addConstraint(Sketcher.Constraint("Symmetric", 1, 3, 7, 3, -2))
sketch6.addConstraint(Sketcher.Constraint("Symmetric", 13, 3, 17, 3, -2))
sketch6.addConstraint(Sketcher.Constraint("Vertical", 7, 3, 13, 3))
sketch6.addConstraint(Sketcher.Constraint("Equal", 0, 8))
sketch6.addConstraint(Sketcher.Constraint("Radius", 1, Q("1 mm")))
sketch6.addConstraint(Sketcher.Constraint("DistanceY", 10, 1, 10, 2, Q("5 mm")))
sketch6.addConstraint(Sketcher.Constraint("DistanceY", 14, 1, 14, 2, Q("17 mm")))
sketch6.addConstraint(Sketcher.Constraint("DistanceX", 0, 1, 0, 2, Q("5.2 mm")))
sketch6.addConstraint(Sketcher.Constraint("DistanceX", 4, 2, 4, 1, Q("52.4 mm")))
sketch6.addConstraint(Sketcher.Constraint("DistanceY", 3, 3, -1, 1, Q("68 mm")))
sketch6.addConstraint(Sketcher.Constraint("DistanceY", 2, 2, 2, 1, Q("54.54 mm")))
pocket5 = body.newObject("PartDesign::Pocket", "Pocket004")
pocket5.Profile = sketch6
pocket5.Length = 5
pocket5.Reversed = True

doc.recompute()
